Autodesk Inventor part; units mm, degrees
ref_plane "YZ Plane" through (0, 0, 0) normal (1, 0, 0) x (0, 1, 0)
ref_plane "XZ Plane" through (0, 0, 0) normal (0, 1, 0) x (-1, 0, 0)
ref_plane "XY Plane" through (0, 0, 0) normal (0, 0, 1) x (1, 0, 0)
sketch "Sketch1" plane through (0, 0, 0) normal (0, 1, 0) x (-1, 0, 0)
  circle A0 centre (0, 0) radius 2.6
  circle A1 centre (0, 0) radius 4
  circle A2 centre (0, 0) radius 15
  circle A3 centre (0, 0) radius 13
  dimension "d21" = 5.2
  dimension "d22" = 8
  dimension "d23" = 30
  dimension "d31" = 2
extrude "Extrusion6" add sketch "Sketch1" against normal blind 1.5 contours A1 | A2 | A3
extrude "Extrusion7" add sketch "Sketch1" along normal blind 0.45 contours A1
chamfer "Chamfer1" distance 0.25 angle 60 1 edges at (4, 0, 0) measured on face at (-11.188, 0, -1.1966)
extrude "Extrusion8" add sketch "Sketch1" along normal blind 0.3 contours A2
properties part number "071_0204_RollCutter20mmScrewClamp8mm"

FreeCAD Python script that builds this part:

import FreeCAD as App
import Part
import Sketcher
from FreeCAD import Vector


def edges_at(feature, points):
    """Names of the edges that pass closest to the given points."""
    edges = feature.Shape.Edges
    near = lambda p: min(range(len(edges)), key=lambda i: edges[i].distToShape(Part.Vertex(*p))[0])
    return sorted({f"Edge{near(p) + 1}" for p in points})

doc = App.newDocument("Part")
body = doc.addObject("PartDesign::Body", "Body")

# Sketch on XZ plane
sketch1 = body.newObject("Sketcher::SketchObject", "Sketch")
sketch1.AttachmentSupport = (doc.getObject("XZ_Plane"), [""])
sketch1.MapMode = "FlatFace"
sketch1.addGeometry([
    Part.Circle(Vector(0, 0, 0), Vector(0, 0, 1), 15),
    Part.Circle(Vector(0, 0, 0), Vector(0, 0, 1), 2.6),
], False)
sketch1.addConstraint([
    Sketcher.Constraint("Coincident", 0, 3, -1, 1),
    Sketcher.Constraint("Coincident", 1, 3, -1, 1),
    Sketcher.Constraint("Diameter", 0, 30.0),
    Sketcher.Constraint("Diameter", 1, 5.2),
])
pad1 = body.newObject("PartDesign::Pad", "Pad")
pad1.Profile = sketch1
pad1.Length = 1.5

# Sketch on XZ plane
sketch2 = body.newObject("Sketcher::SketchObject", "Sketch001")
sketch2.AttachmentSupport = (doc.getObject("XZ_Plane"), [""])
sketch2.MapMode = "FlatFace"
sketch2.addGeometry([
    Part.Circle(Vector(0, 0, 0), Vector(0, 0, 1), 4),
    Part.Circle(Vector(0, 0, 0), Vector(0, 0, 1), 2.6),
], False)
sketch2.addConstraint([
    Sketcher.Constraint("Coincident", 0, 3, -1, 1),
    Sketcher.Constraint("Coincident", 1, 3, -1, 1),
    Sketcher.Constraint("Diameter", 0, 8.0),
    Sketcher.Constraint("Diameter", 1, 5.2),
])
pad2 = body.newObject("PartDesign::Pad", "Pad001")
pad2.Profile = sketch2
pad2.Length = 0.45
pad2.Reversed = True
doc.recompute()

chamfer = body.newObject("PartDesign::Chamfer", "Chamfer")
chamfer.Base = (pad2, edges_at(pad2, [(4, 0, 0)]))
chamfer.ChamferType = "Distance and Angle"
chamfer.Size = 0.25
chamfer.Angle = 60

# Sketch on XZ plane
sketch3 = body.newObject("Sketcher::SketchObject", "Sketch002")
sketch3.AttachmentSupport = (doc.getObject("XZ_Plane"), [""])
sketch3.MapMode = "FlatFace"
sketch3.addGeometry([
    Part.Circle(Vector(0, 0, 0), Vector(0, 0, 1), 15),
    Part.Circle(Vector(0, 0, 0), Vector(0, 0, 1), 13),
], False)
sketch3.addConstraint([
    Sketcher.Constraint("Coincident", 0, 3, -1, 1),
    Sketcher.Constraint("Coincident", 1, 3, -1, 1),
    Sketcher.Constraint("Diameter", 0, 30.0),
    Sketcher.Constraint("Diameter", 1, 26.0),
])
pad3 = body.newObject("PartDesign::Pad", "Pad002")
pad3.Profile = sketch3
pad3.Length = 0.3
pad3.Reversed = True

doc.recompute()
